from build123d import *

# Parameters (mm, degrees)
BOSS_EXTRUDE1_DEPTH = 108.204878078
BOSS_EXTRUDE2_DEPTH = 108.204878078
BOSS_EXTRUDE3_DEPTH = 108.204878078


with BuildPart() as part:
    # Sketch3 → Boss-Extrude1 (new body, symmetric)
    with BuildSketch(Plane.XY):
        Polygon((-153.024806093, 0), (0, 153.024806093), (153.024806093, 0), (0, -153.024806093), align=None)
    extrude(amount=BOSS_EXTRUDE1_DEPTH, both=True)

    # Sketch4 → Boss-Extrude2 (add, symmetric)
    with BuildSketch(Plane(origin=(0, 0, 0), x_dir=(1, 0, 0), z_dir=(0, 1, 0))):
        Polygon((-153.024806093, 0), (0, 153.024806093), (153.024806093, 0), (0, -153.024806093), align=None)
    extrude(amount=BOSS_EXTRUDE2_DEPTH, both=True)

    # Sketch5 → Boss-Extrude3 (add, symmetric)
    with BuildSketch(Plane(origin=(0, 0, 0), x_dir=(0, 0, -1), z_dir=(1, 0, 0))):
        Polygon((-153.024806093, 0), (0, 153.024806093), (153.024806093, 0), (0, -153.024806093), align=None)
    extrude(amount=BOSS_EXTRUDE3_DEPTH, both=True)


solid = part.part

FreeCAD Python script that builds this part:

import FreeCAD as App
import Part
import Sketcher

V = App.Vector


def add_polygon(sketch, points):
    """Adds a closed chain of lines whose ends are joined by coincident constraints."""
    first, n = sketch.GeometryCount, len(points)
    for a, b in zip(points, points[1:] + points[:1]):
        sketch.addGeometry(Part.LineSegment(App.Vector(*a, 0), App.Vector(*b, 0)), False)
    for i in range(n):
        sketch.addConstraint(Sketcher.Constraint("Coincident", first + i, 2, first + (i + 1) % n, 1))

doc = App.newDocument("Part")
body = doc.addObject("PartDesign::Body", "Body")

# Sketch on XY plane
sketch1 = body.newObject("Sketcher::SketchObject", "Sketch")
sketch1.AttachmentSupport = (doc.getObject("XY_Plane"), [""])
sketch1.MapMode = "FlatFace"
add_polygon(sketch1, [(0, 153), (-153, 0), (0, -153), (153, 0)])  # lines 0-3
sketch1.addConstraint([
    Sketcher.Constraint("Symmetric", 0, 2, 2, 2, -1, 1),
    Sketcher.Constraint("Symmetric", 1, 2, 3, 2, -1, 1),
    Sketcher.Constraint("PointOnObject", 0, 2, -1),
    Sketcher.Constraint("PointOnObject", 1, 2, -2),
    Sketcher.Constraint("Perpendicular", 0, 1),
    Sketcher.Constraint("Distance", 0, 216.409756),
])
pad1 = body.newObject("PartDesign::Pad", "Pad")
pad1.Profile = sketch1
pad1.Length = 216.409756
pad1.Midplane = True

# Sketch on XZ plane
sketch2 = body.newObject("Sketcher::SketchObject", "Sketch001")
sketch2.AttachmentSupport = (doc.getObject("XZ_Plane"), [""])
sketch2.MapMode = "FlatFace"
add_polygon(sketch2, [(0, -153), (-153, 0), (0, 153), (153, 0)])  # lines 0-3
sketch2.addConstraint([
    Sketcher.Constraint("Symmetric", 0, 2, 2, 2, -1, 1),
    Sketcher.Constraint("Symmetric", 1, 2, 3, 2, -1, 1),
    Sketcher.Constraint("PointOnObject", 0, 2, -1),
    Sketcher.Constraint("PointOnObject", 1, 2, -2),
    Sketcher.Constraint("Perpendicular", 0, 1),
    Sketcher.Constraint("Distance", 0, 216.409756),
])
pad2 = body.newObject("PartDesign::Pad", "Pad001")
pad2.Profile = sketch2
pad2.Length = 216.409756
pad2.Midplane = True

# Sketch on YZ plane
sketch3 = body.newObject("Sketcher::SketchObject", "Sketch002")
sketch3.AttachmentSupport = (doc.getObject("YZ_Plane"), [""])
sketch3.MapMode = "FlatFace"
add_polygon(sketch3, [(153, 0), (0, 153), (-153, 0), (0, -153)])  # lines 0-3
sketch3.addConstraint([
    Sketcher.Constraint("Symmetric", 0, 2, 2, 2, -1, 1),
    Sketcher.Constraint("Symmetric", 1, 2, 3, 2, -1, 1),
    Sketcher.Constraint("PointOnObject", 0, 2, -2),
    Sketcher.Constraint("PointOnObject", 1, 2, -1),
    Sketcher.Constraint("Perpendicular", 0, 1),
    Sketcher.Constraint("Distance", 0, 216.409756),
])
pad3 = body.newObject("PartDesign::Pad", "Pad002")
pad3.Profile = sketch3
pad3.Length = 216.409756
pad3.Midplane = True

doc.recompute()
